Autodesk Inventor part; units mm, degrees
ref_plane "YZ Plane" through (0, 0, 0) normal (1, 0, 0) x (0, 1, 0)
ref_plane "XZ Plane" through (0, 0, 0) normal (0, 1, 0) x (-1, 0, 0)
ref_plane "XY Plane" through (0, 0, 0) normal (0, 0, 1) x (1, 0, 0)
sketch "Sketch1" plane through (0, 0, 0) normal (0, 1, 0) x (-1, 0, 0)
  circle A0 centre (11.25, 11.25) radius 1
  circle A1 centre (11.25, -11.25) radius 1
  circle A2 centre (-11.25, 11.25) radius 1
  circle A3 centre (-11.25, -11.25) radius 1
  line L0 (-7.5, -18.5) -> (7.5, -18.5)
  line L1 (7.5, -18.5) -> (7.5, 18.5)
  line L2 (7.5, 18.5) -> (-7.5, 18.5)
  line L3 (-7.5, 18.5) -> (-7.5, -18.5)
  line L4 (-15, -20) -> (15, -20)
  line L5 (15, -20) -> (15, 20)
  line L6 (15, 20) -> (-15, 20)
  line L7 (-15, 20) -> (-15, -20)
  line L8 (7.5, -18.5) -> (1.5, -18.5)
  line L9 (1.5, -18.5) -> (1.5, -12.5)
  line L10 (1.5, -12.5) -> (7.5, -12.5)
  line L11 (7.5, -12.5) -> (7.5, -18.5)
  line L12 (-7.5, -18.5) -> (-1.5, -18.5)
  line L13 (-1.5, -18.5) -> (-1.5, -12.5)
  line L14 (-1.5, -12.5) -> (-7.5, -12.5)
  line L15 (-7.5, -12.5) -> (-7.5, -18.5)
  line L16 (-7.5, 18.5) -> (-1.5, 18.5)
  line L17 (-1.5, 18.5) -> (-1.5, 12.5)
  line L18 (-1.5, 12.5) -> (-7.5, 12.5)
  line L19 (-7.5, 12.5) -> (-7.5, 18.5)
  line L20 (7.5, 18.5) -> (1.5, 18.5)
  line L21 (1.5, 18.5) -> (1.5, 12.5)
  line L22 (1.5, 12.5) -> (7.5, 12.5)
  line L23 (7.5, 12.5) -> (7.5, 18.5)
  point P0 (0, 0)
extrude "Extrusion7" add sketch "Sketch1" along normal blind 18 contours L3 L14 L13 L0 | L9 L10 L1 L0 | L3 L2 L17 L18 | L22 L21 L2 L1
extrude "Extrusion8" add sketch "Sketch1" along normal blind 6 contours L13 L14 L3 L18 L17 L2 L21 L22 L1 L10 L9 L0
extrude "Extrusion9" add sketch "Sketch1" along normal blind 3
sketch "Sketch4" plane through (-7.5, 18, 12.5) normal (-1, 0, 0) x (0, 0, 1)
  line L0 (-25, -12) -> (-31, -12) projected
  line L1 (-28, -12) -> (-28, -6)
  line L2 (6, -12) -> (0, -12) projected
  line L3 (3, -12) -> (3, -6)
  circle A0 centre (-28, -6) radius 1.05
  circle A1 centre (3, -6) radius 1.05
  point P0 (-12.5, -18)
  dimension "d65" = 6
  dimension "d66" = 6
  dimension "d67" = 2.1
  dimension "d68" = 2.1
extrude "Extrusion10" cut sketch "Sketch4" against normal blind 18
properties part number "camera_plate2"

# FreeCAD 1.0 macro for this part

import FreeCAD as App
import Part
import Sketcher
from FreeCAD import Vector

doc = App.newDocument("Part")
params = doc.addObject("Spreadsheet::Sheet", "Params")
for row, (alias, value) in enumerate([
    ("sketch1_width", "6 mm"),
    ("pad1_length", "18 mm"),
    ("sketch2_width", "3 mm"),
    ("sketch2_width2", "6 mm"),
    ("sketch2_height", "25 mm"),
    ("pad2_length", "6 mm"),
    ("sketch3_diameter", "2 mm"),
    ("sketch3_width", "30 mm"),
    ("sketch3_width2", "15 mm"),
    ("sketch3_height", "40 mm"),
    ("sketch3_height2", "37 mm"),
    ("pad3_length", "3 mm"),
    ("sketch4_diameter", "2.1 mm"),
    ("pocket1_length", "18 mm"),
], start=1):
    params.set(f"A{row}", alias)
    params.set(f"B{row}", "=" + value)
    params.setAlias(f"B{row}", alias)

body = doc.addObject("PartDesign::Body", "Body")
body.AllowCompound = True

sketch1 = doc.addObject("Sketcher::SketchObject", "Sketch")
body.addObject(sketch1)
sketch1.AttachmentSupport = (doc.XZ_Plane, [""])
sketch1.MapMode = "FlatFace"
sketch1.addGeometry([
    Part.LineSegment(Vector(7.5, -12.5, 0), Vector(7.5, -18.5, 0)),
    Part.LineSegment(Vector(7.5, -18.5, 0), Vector(1.5, -18.5, 0)),
    Part.LineSegment(Vector(1.5, -18.5, 0), Vector(1.5, -12.5, 0)),
    Part.LineSegment(Vector(1.5, -12.5, 0), Vector(7.5, -12.5, 0)),
    Part.LineSegment(Vector(-1.5, -12.5, 0), Vector(-1.5, -18.5, 0)),
    Part.LineSegment(Vector(-1.5, -18.5, 0), Vector(-7.5, -18.5, 0)),
    Part.LineSegment(Vector(-7.5, -18.5, 0), Vector(-7.5, -12.5, 0)),
    Part.LineSegment(Vector(-7.5, -12.5, 0), Vector(-1.5, -12.5, 0)),
    Part.LineSegment(Vector(7.5, 18.5, 0), Vector(7.5, 12.5, 0)),
    Part.LineSegment(Vector(7.5, 12.5, 0), Vector(1.5, 12.5, 0)),
    Part.LineSegment(Vector(1.5, 12.5, 0), Vector(1.5, 18.5, 0)),
    Part.LineSegment(Vector(1.5, 18.5, 0), Vector(7.5, 18.5, 0)),
    Part.LineSegment(Vector(-1.5, 12.5, 0), Vector(-7.5, 12.5, 0)),
    Part.LineSegment(Vector(-7.5, 12.5, 0), Vector(-7.5, 18.5, 0)),
    Part.LineSegment(Vector(-7.5, 18.5, 0), Vector(-1.5, 18.5, 0)),
    Part.LineSegment(Vector(-1.5, 18.5, 0), Vector(-1.5, 12.5, 0)),
], False)
sketch1.addConstraint([
    Sketcher.Constraint("Coincident", 0, 2, 1, 1),
    Sketcher.Constraint("Coincident", 1, 2, 2, 1),
    Sketcher.Constraint("Coincident", 2, 2, 3, 1),
    Sketcher.Constraint("Coincident", 3, 2, 0, 1),
    Sketcher.Constraint("Coincident", 4, 2, 5, 1),
    Sketcher.Constraint("Coincident", 5, 2, 6, 1),
    Sketcher.Constraint("Coincident", 6, 2, 7, 1),
    Sketcher.Constraint("Coincident", 7, 2, 4, 1),
    Sketcher.Constraint("Coincident", 8, 2, 9, 1),
    Sketcher.Constraint("Coincident", 9, 2, 10, 1),
    Sketcher.Constraint("Coincident", 10, 2, 11, 1),
    Sketcher.Constraint("Coincident", 11, 2, 8, 1),
    Sketcher.Constraint("Coincident", 12, 2, 13, 1),
    Sketcher.Constraint("Coincident", 13, 2, 14, 1),
    Sketcher.Constraint("Coincident", 14, 2, 15, 1),
    Sketcher.Constraint("Coincident", 15, 2, 12, 1),
    Sketcher.Constraint("Vertical", 0),
    Sketcher.Constraint("Horizontal", 1),
    Sketcher.Constraint("Vertical", 2),
    Sketcher.Constraint("Horizontal", 3),
    Sketcher.Constraint("Vertical", 4),
    Sketcher.Constraint("Horizontal", 5),
    Sketcher.Constraint("Vertical", 6),
    Sketcher.Constraint("Horizontal", 7),
    Sketcher.Constraint("Vertical", 8),
    Sketcher.Constraint("Horizontal", 9),
    Sketcher.Constraint("Vertical", 10),
    Sketcher.Constraint("Horizontal", 11),
    Sketcher.Constraint("Horizontal", 12),
    Sketcher.Constraint("Vertical", 13),
    Sketcher.Constraint("Horizontal", 14),
    Sketcher.Constraint("Vertical", 15),
    Sketcher.Constraint("Symmetric", 6, 2, 8, 2, -1, 1),
    Sketcher.Constraint("Symmetric", 4, 2, 10, 2, -1, 1),
    Sketcher.Constraint("Symmetric", 3, 2, 12, 2, -1, 1),
    Sketcher.Constraint("Symmetric", 1, 2, 14, 2, -1, 1),
    Sketcher.Constraint("Symmetric", 1, 2, 4, 2, -2),
    Sketcher.Constraint("Symmetric", 3, 2, 6, 2, -2),
    Sketcher.Constraint("Equal", 14, 0),
    Sketcher.Constraint("DistanceX", 1, 2, 1, 1, 6.0),
    Sketcher.Constraint("DistanceX", 4, 2, 1, 2, 3.0),
    Sketcher.Constraint("DistanceY", 3, 2, 8, 2, 25.0),
])
sketch1.setExpression("Constraints[39]", "Params.sketch1_width")
pad1 = doc.addObject("PartDesign::Pad", "Pad")
body.addObject(pad1)
pad1.Profile = sketch1
pad1.setExpression("Length", "Params.pad1_length")
pad1.Reversed = True

sketch2 = doc.addObject("Sketcher::SketchObject", "Sketch001")
body.addObject(sketch2)
sketch2.AttachmentSupport = (doc.XZ_Plane, [""])
sketch2.MapMode = "FlatFace"
sketch2.addGeometry([
    Part.LineSegment(Vector(1.5, -12.5, 0), Vector(1.5, -18.5, 0)),
    Part.LineSegment(Vector(1.5, -18.5, 0), Vector(-1.5, -18.5, 0)),
    Part.LineSegment(Vector(-1.5, -18.5, 0), Vector(-1.5, -12.5, 0)),
    Part.LineSegment(Vector(-1.5, -12.5, 0), Vector(-7.5, -12.5, 0)),
    Part.LineSegment(Vector(-7.5, -12.5, 0), Vector(-7.5, 12.5, 0)),
    Part.LineSegment(Vector(-7.5, 12.5, 0), Vector(-1.5, 12.5, 0)),
    Part.LineSegment(Vector(-1.5, 12.5, 0), Vector(-1.5, 18.5, 0)),
    Part.LineSegment(Vector(-1.5, 18.5, 0), Vector(1.5, 18.5, 0)),
    Part.LineSegment(Vector(1.5, 18.5, 0), Vector(1.5, 12.5, 0)),
    Part.LineSegment(Vector(1.5, 12.5, 0), Vector(7.5, 12.5, 0)),
    Part.LineSegment(Vector(7.5, 12.5, 0), Vector(7.5, -12.5, 0)),
    Part.LineSegment(Vector(7.5, -12.5, 0), Vector(1.5, -12.5, 0)),
], False)
sketch2.addConstraint([
    Sketcher.Constraint("Coincident", 0, 2, 1, 1),
    Sketcher.Constraint("Coincident", 1, 2, 2, 1),
    Sketcher.Constraint("Coincident", 2, 2, 3, 1),
    Sketcher.Constraint("Coincident", 3, 2, 4, 1),
    Sketcher.Constraint("Coincident", 4, 2, 5, 1),
    Sketcher.Constraint("Coincident", 5, 2, 6, 1),
    Sketcher.Constraint("Coincident", 6, 2, 7, 1),
    Sketcher.Constraint("Coincident", 7, 2, 8, 1),
    Sketcher.Constraint("Coincident", 8, 2, 9, 1),
    Sketcher.Constraint("Coincident", 9, 2, 10, 1),
    Sketcher.Constraint("Coincident", 10, 2, 11, 1),
    Sketcher.Constraint("Coincident", 11, 2, 0, 1),
    Sketcher.Constraint("Vertical", 0),
    Sketcher.Constraint("Horizontal", 1),
    Sketcher.Constraint("Vertical", 2),
    Sketcher.Constraint("Horizontal", 3),
    Sketcher.Constraint("Vertical", 4),
    Sketcher.Constraint("Horizontal", 5),
    Sketcher.Constraint("Vertical", 6),
    Sketcher.Constraint("Horizontal", 7),
    Sketcher.Constraint("Vertical", 8),
    Sketcher.Constraint("Horizontal", 9),
    Sketcher.Constraint("Vertical", 10),
    Sketcher.Constraint("Horizontal", 11),
    Sketcher.Constraint("Symmetric", 0, 2, 6, 2, -1, 1),
    Sketcher.Constraint("Symmetric", 2, 2, 8, 2, -1, 1),
    Sketcher.Constraint("Symmetric", 4, 2, 10, 2, -1, 1),
    Sketcher.Constraint("Symmetric", 5, 2, 8, 2, -2),
    Sketcher.Constraint("Equal", 11, 0),
    Sketcher.Constraint("DistanceX", 1, 2, 1, 1, 3.0),
    Sketcher.Constraint("DistanceX", 3, 2, 3, 1, 6.0),
    Sketcher.Constraint("DistanceY", 4, 1, 4, 2, 25.0),
])
sketch2.setExpression("Constraints[29]", "Params.sketch2_width")
sketch2.setExpression("Constraints[30]", "Params.sketch2_width2")
sketch2.setExpression("Constraints[31]", "Params.sketch2_height")
pad2 = doc.addObject("PartDesign::Pad", "Pad001")
body.addObject(pad2)
pad2.Profile = sketch2
pad2.setExpression("Length", "Params.pad2_length")
pad2.Reversed = True

sketch3 = doc.addObject("Sketcher::SketchObject", "Sketch002")
body.addObject(sketch3)
sketch3.AttachmentSupport = (doc.XZ_Plane, [""])
sketch3.MapMode = "FlatFace"
sketch3.addGeometry([
    Part.LineSegment(Vector(15, 20, 0), Vector(15, -20, 0)),
    Part.LineSegment(Vector(15, -20, 0), Vector(-15, -20, 0)),
    Part.LineSegment(Vector(-15, -20, 0), Vector(-15, 20, 0)),
    Part.LineSegment(Vector(-15, 20, 0), Vector(15, 20, 0)),
    Part.Circle(Vector(11.25, -11.25, 0), Vector(0, 0, 1), 1),
    Part.Circle(Vector(-11.25, -11.25, 0), Vector(0, 0, 1), 1),
    Part.Circle(Vector(11.25, 11.25, 0), Vector(0, 0, 1), 1),
    Part.LineSegment(Vector(-7.5, -18.5, 0), Vector(7.5, -18.5, 0)),
    Part.LineSegment(Vector(7.5, -18.5, 0), Vector(7.5, 18.5, 0)),
    Part.LineSegment(Vector(7.5, 18.5, 0), Vector(-7.5, 18.5, 0)),
    Part.LineSegment(Vector(-7.5, 18.5, 0), Vector(-7.5, -18.5, 0)),
    Part.Circle(Vector(-11.25, 11.25, 0), Vector(0, 0, 1), 1),
], False)
sketch3.addConstraint([
    Sketcher.Constraint("Coincident", 0, 2, 1, 1),
    Sketcher.Constraint("Coincident", 1, 2, 2, 1),
    Sketcher.Constraint("Coincident", 2, 2, 3, 1),
    Sketcher.Constraint("Coincident", 3, 2, 0, 1),
    Sketcher.Constraint("Coincident", 7, 2, 8, 1),
    Sketcher.Constraint("Coincident", 8, 2, 9, 1),
    Sketcher.Constraint("Coincident", 9, 2, 10, 1),
    Sketcher.Constraint("Coincident", 10, 2, 7, 1),
    Sketcher.Constraint("Vertical", 0),
    Sketcher.Constraint("Horizontal", 1),
    Sketcher.Constraint("Vertical", 2),
    Sketcher.Constraint("Horizontal", 3),
    Sketcher.Constraint("Horizontal", 7),
    Sketcher.Constraint("Vertical", 8),
    Sketcher.Constraint("Horizontal", 9),
    Sketcher.Constraint("Vertical", 10),
    Sketcher.Constraint("Equal", 4, 5),
    Sketcher.Constraint("Equal", 5, 6),
    Sketcher.Constraint("Equal", 6, 11),
    Sketcher.Constraint("Symmetric", 5, 3, 6, 3, -1, 1),
    Sketcher.Constraint("Symmetric", 4, 3, 11, 3, -1, 1),
    Sketcher.Constraint("Symmetric", 0, 2, 2, 2, -1, 1),
    Sketcher.Constraint("Symmetric", 7, 2, 9, 2, -1, 1),
    Sketcher.Constraint("Symmetric", 4, 3, 5, 3, -2),
    Sketcher.Constraint("Diameter", 4, 2.0),
    Sketcher.Constraint("DistanceX", 1, 2, 1, 1, 30.0),
    Sketcher.Constraint("DistanceX", 7, 1, 7, 2, 15.0),
    Sketcher.Constraint("DistanceY", 0, 2, 0, 1, 40.0),
    Sketcher.Constraint("DistanceY", 8, 1, 8, 2, 37.0),
    Sketcher.Constraint("DistanceX", 5, 3, 4, 3, 22.5),
    Sketcher.Constraint("DistanceY", 4, 3, 6, 3, 22.5),
])
sketch3.setExpression("Constraints[24]", "Params.sketch3_diameter")
sketch3.setExpression("Constraints[25]", "Params.sketch3_width")
sketch3.setExpression("Constraints[26]", "Params.sketch3_width2")
sketch3.setExpression("Constraints[27]", "Params.sketch3_height")
sketch3.setExpression("Constraints[28]", "Params.sketch3_height2")
pad3 = doc.addObject("PartDesign::Pad", "Pad002")
body.addObject(pad3)
pad3.Profile = sketch3
pad3.setExpression("Length", "Params.pad3_length")
pad3.Reversed = True

sketch4 = doc.addObject("Sketcher::SketchObject", "Sketch003")
body.addObject(sketch4)
sketch4.AttachmentSupport = (doc.YZ_Plane, [""])
sketch4.MapMode = "FlatFace"
sketch4.AttachmentOffset = App.Placement(Vector(0, 0, -7.5), App.Rotation())
sketch4.addGeometry([
    Part.Circle(Vector(12, -15.5, 0), Vector(0, 0, 1), 1.05),
    Part.Circle(Vector(12, 15.5, 0), Vector(0, 0, 1), 1.05),
], False)
sketch4.addConstraint([
    Sketcher.Constraint("Equal", 0, 1),
    Sketcher.Constraint("Symmetric", 0, 3, 1, 3, -1),
    Sketcher.Constraint("Diameter", 0, 2.1),
    Sketcher.Constraint("DistanceX", -1, 1, 0, 3, 12.0),
    Sketcher.Constraint("DistanceY", 0, 3, 1, 3, 31.0),
])
sketch4.setExpression("Constraints[2]", "Params.sketch4_diameter")
pocket1 = doc.addObject("PartDesign::Pocket", "Pocket")
body.addObject(pocket1)
pocket1.Profile = sketch4
pocket1.setExpression("Length", "Params.pocket1_length")
pocket1.Reversed = True

doc.recompute()
